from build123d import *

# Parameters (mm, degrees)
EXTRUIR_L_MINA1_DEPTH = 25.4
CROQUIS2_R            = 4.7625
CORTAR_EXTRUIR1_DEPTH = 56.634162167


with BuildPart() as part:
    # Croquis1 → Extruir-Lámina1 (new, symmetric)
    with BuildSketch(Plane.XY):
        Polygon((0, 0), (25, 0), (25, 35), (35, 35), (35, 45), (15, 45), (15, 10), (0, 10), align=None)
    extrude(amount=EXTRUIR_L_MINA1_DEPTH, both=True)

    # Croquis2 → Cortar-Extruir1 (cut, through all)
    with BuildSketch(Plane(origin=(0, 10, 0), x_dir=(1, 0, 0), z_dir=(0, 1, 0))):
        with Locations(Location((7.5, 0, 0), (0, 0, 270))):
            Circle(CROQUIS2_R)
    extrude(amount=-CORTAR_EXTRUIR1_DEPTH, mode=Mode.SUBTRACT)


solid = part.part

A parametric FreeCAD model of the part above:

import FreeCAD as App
import Part
import Sketcher

V = App.Vector
Q = App.Units.Quantity

doc = App.newDocument("Part")
params = doc.addObject("Spreadsheet::Sheet", "Params")
for row, (alias, value) in enumerate([
    ("sketch1_width", "25 mm"),
    ("sketch1_width2", "10 mm"),
    ("sketch1_width3", "20 mm"),
    ("sketch1_height", "35 mm"),
    ("pad1_length", "50.8 mm"),
], start=1):
    params.set(f"A{row}", alias)
    params.set(f"B{row}", "=" + value)
    params.setAlias(f"B{row}", alias)

body = doc.addObject("PartDesign::Body", "Body")

sketch1 = body.newObject("Sketcher::SketchObject", "Sketch")
sketch1.AttachmentSupport = (doc.getObject("XY_Plane"), [""])
sketch1.MapMode = "FlatFace"
sketch1.addGeometry(Part.LineSegment(V(0, 0, 0), V(25, 0, 0)), False)
sketch1.addGeometry(Part.LineSegment(V(25, 0, 0), V(25, 35, 0)), False)
sketch1.addGeometry(Part.LineSegment(V(25, 35, 0), V(35, 35, 0)), False)
sketch1.addGeometry(Part.LineSegment(V(35, 35, 0), V(35, 45, 0)), False)
sketch1.addGeometry(Part.LineSegment(V(35, 45, 0), V(15, 45, 0)), False)
sketch1.addGeometry(Part.LineSegment(V(15, 45, 0), V(15, 10, 0)), False)
sketch1.addGeometry(Part.LineSegment(V(15, 10, 0), V(0, 10, 0)), False)
sketch1.addGeometry(Part.LineSegment(V(0, 10, 0), V(0, 0, 0)), False)
sketch1.addConstraint(Sketcher.Constraint("Coincident", 0, 2, 1, 1))
sketch1.addConstraint(Sketcher.Constraint("Coincident", 1, 2, 2, 1))
sketch1.addConstraint(Sketcher.Constraint("Coincident", 2, 2, 3, 1))
sketch1.addConstraint(Sketcher.Constraint("Coincident", 3, 2, 4, 1))
sketch1.addConstraint(Sketcher.Constraint("Coincident", 4, 2, 5, 1))
sketch1.addConstraint(Sketcher.Constraint("Coincident", 5, 2, 6, 1))
sketch1.addConstraint(Sketcher.Constraint("Coincident", 6, 2, 7, 1))
sketch1.addConstraint(Sketcher.Constraint("Coincident", 7, 2, 0, 1))
sketch1.addConstraint(Sketcher.Constraint("Horizontal", 0))
sketch1.addConstraint(Sketcher.Constraint("Vertical", 1))
sketch1.addConstraint(Sketcher.Constraint("Horizontal", 2))
sketch1.addConstraint(Sketcher.Constraint("Vertical", 3))
sketch1.addConstraint(Sketcher.Constraint("Horizontal", 4))
sketch1.addConstraint(Sketcher.Constraint("Vertical", 5))
sketch1.addConstraint(Sketcher.Constraint("Horizontal", 6))
sketch1.addConstraint(Sketcher.Constraint("Vertical", 7))
sketch1.addConstraint(Sketcher.Constraint("Coincident", 7, 2, -1, 1))
sketch1.addConstraint(Sketcher.Constraint("Equal", 2, 3))
sketch1.addConstraint(Sketcher.Constraint("Equal", 1, 5))
sketch1.addConstraint(Sketcher.Constraint("DistanceX", 0, 1, 0, 2, Q("25 mm")))
sketch1.addConstraint(Sketcher.Constraint("DistanceX", 2, 1, 2, 2, Q("10 mm")))
sketch1.addConstraint(Sketcher.Constraint("DistanceX", 4, 2, 4, 1, Q("20 mm")))
sketch1.addConstraint(Sketcher.Constraint("DistanceY", 1, 1, 1, 2, Q("35 mm")))
sketch1.setExpression("Constraints[19]", "Params.sketch1_width")
sketch1.setExpression("Constraints[20]", "Params.sketch1_width2")
sketch1.setExpression("Constraints[21]", "Params.sketch1_width3")
sketch1.setExpression("Constraints[22]", "Params.sketch1_height")
pad1 = body.newObject("PartDesign::Pad", "Pad")
pad1.Profile = sketch1
pad1.setExpression("Length", "Params.pad1_length")
pad1.Midplane = True

sketch2 = body.newObject("Sketcher::SketchObject", "Sketch001")
sketch2.AttachmentSupport = (doc.getObject("XZ_Plane"), [""])
sketch2.MapMode = "FlatFace"
sketch2.AttachmentOffset = App.Placement(V(0, 0, -10), App.Rotation())
sketch2.addGeometry(Part.Circle(V(7.5, 0, 0), V(0, 0, 1), 4.8), False)
sketch2.addConstraint(Sketcher.Constraint("PointOnObject", 0, 3, -1))
sketch2.addConstraint(Sketcher.Constraint("Diameter", 0, Q("9.525 mm")))
sketch2.addConstraint(Sketcher.Constraint("DistanceX", -1, 1, 0, 3, Q("7.5 mm")))
pocket1 = body.newObject("PartDesign::Pocket", "Pocket")
pocket1.Profile = sketch2
pocket1.Type = "ThroughAll"
pocket1.Reversed = True

doc.recompute()
